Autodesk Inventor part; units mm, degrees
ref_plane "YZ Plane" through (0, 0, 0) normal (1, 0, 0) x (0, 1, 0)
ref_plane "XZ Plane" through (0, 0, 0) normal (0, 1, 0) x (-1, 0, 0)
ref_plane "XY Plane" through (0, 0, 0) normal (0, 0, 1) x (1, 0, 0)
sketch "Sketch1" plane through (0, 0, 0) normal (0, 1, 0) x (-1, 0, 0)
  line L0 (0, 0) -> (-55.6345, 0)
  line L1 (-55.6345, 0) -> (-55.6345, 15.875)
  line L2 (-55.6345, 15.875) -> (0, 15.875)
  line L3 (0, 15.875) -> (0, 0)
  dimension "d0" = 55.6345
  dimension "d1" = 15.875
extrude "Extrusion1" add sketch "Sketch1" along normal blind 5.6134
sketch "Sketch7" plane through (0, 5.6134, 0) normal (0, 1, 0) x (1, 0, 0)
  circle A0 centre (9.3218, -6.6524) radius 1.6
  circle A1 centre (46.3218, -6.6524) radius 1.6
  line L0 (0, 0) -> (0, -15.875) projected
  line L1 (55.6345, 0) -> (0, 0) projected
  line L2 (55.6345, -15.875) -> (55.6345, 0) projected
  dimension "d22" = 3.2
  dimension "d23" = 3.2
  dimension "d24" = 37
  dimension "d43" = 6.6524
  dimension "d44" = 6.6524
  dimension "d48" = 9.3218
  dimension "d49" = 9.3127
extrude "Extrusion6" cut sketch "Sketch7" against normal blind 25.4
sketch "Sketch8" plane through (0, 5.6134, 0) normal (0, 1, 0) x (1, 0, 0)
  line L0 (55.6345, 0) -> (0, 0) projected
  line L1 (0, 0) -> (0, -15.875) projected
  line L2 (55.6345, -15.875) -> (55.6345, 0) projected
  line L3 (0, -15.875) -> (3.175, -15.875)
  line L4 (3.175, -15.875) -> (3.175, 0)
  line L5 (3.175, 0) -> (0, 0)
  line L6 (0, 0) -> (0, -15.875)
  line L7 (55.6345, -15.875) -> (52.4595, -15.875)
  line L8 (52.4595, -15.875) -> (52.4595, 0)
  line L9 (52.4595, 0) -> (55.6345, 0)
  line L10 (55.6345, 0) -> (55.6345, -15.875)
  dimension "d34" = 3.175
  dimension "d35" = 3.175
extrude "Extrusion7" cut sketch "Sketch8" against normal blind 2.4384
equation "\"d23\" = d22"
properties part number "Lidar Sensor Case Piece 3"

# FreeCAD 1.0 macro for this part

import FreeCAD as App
import Part
import Sketcher
Q = App.Units.Quantity


def add_polygon(sketch, points):
    """Adds a closed chain of lines whose ends are joined by coincident constraints."""
    first, n = sketch.GeometryCount, len(points)
    for a, b in zip(points, points[1:] + points[:1]):
        sketch.addGeometry(Part.LineSegment(App.Vector(*a, 0), App.Vector(*b, 0)), False)
    for i in range(n):
        sketch.addConstraint(Sketcher.Constraint("Coincident", first + i, 2, first + (i + 1) % n, 1))

doc = App.newDocument("Part")
body = doc.addObject("PartDesign::Body", "Body")

sketch1 = body.newObject("Sketcher::SketchObject", "Sketch")
sketch1.AttachmentSupport = (doc.getObject("XZ_Plane"), [""])
sketch1.MapMode = "FlatFace"
add_polygon(sketch1, [(56, 0), (0, 0), (0, 16), (56, 16)])
sketch1.addConstraint(Sketcher.Constraint("Horizontal", 0))
sketch1.addConstraint(Sketcher.Constraint("Vertical", 1))
sketch1.addConstraint(Sketcher.Constraint("Horizontal", 2))
sketch1.addConstraint(Sketcher.Constraint("Vertical", 3))
sketch1.addConstraint(Sketcher.Constraint("Coincident", 0, 2, -1, 1))
sketch1.addConstraint(Sketcher.Constraint("DistanceY", 1, 1, 1, 2, Q("0.625 in")))
sketch1.addConstraint(Sketcher.Constraint("DistanceX", 0, 2, 0, 1, 55.6345))
pad1 = body.newObject("PartDesign::Pad", "Pad")
pad1.Profile = sketch1
pad1.Length = Q("0.221 in")
pad1.Reversed = True

sketch2 = body.newObject("Sketcher::SketchObject", "Sketch001")
sketch2.AttachmentSupport = (doc.getObject("XZ_Plane"), [""])
sketch2.MapMode = "FlatFace"
sketch2.AttachmentOffset = App.Placement(App.Vector(0, 0, -0.221 * 25.4), App.Rotation())
sketch2.addGeometry(Part.Circle(App.Vector(9.3, 6.7, 0), App.Vector(0, 0, 1), 1.6), False)
sketch2.addGeometry(Part.Circle(App.Vector(46.3, 6.7, 0), App.Vector(0, 0, 1), 1.6), False)
sketch2.addConstraint(Sketcher.Constraint("Equal", 0, 1))
sketch2.addConstraint(Sketcher.Constraint("Horizontal", 0, 3, 1, 3))
sketch2.addConstraint(Sketcher.Constraint("Diameter", 0, 3.2))
sketch2.addConstraint(Sketcher.Constraint("DistanceX", -1, 1, 0, 3, Q("0.367 in")))
sketch2.addConstraint(Sketcher.Constraint("DistanceY", -1, 1, 0, 3, Q("0.2619 in")))
sketch2.addConstraint(Sketcher.Constraint("DistanceX", 0, 3, 1, 3, Q("1.4567 in")))
pocket1 = body.newObject("PartDesign::Pocket", "Pocket")
pocket1.Profile = sketch2
pocket1.Length = Q("1 in")
pocket1.Reversed = True

sketch3 = body.newObject("Sketcher::SketchObject", "Sketch002")
sketch3.AttachmentSupport = (doc.getObject("XZ_Plane"), [""])
sketch3.MapMode = "FlatFace"
sketch3.AttachmentOffset = App.Placement(App.Vector(0, 0, -0.221 * 25.4), App.Rotation())
add_polygon(sketch3, [(55.6, 15.9), (55.6, 0), (52.5, 0), (52.5, 15.9)])
add_polygon(sketch3, [(3.2, 15.9), (3.2, 0), (0, 0), (0, 15.9)])
sketch3.addConstraint(Sketcher.Constraint("Vertical", 0))
sketch3.addConstraint(Sketcher.Constraint("Horizontal", 1))
sketch3.addConstraint(Sketcher.Constraint("Vertical", 2))
sketch3.addConstraint(Sketcher.Constraint("Horizontal", 3))
sketch3.addConstraint(Sketcher.Constraint("Vertical", 4))
sketch3.addConstraint(Sketcher.Constraint("Horizontal", 5))
sketch3.addConstraint(Sketcher.Constraint("Vertical", 6))
sketch3.addConstraint(Sketcher.Constraint("Horizontal", 7))
sketch3.addConstraint(Sketcher.Constraint("Coincident", 5, 2, -1, 1))
sketch3.addConstraint(Sketcher.Constraint("PointOnObject", 0, 2, -1))
sketch3.addConstraint(Sketcher.Constraint("Horizontal", 3, 2, 6, 2))
sketch3.addConstraint(Sketcher.Constraint("Equal", 3, 5))
sketch3.addConstraint(Sketcher.Constraint("DistanceX", 1, 2, 1, 1, Q("0.125 in")))
sketch3.addConstraint(Sketcher.Constraint("DistanceY", 0, 2, 0, 1, Q("0.625 in")))
sketch3.addConstraint(Sketcher.Constraint("DistanceX", -1, 1, 0, 2, 55.6345))
pocket2 = body.newObject("PartDesign::Pocket", "Pocket001")
pocket2.Profile = sketch3
pocket2.Length = Q("0.096 in")
pocket2.Reversed = True

doc.recompute()
